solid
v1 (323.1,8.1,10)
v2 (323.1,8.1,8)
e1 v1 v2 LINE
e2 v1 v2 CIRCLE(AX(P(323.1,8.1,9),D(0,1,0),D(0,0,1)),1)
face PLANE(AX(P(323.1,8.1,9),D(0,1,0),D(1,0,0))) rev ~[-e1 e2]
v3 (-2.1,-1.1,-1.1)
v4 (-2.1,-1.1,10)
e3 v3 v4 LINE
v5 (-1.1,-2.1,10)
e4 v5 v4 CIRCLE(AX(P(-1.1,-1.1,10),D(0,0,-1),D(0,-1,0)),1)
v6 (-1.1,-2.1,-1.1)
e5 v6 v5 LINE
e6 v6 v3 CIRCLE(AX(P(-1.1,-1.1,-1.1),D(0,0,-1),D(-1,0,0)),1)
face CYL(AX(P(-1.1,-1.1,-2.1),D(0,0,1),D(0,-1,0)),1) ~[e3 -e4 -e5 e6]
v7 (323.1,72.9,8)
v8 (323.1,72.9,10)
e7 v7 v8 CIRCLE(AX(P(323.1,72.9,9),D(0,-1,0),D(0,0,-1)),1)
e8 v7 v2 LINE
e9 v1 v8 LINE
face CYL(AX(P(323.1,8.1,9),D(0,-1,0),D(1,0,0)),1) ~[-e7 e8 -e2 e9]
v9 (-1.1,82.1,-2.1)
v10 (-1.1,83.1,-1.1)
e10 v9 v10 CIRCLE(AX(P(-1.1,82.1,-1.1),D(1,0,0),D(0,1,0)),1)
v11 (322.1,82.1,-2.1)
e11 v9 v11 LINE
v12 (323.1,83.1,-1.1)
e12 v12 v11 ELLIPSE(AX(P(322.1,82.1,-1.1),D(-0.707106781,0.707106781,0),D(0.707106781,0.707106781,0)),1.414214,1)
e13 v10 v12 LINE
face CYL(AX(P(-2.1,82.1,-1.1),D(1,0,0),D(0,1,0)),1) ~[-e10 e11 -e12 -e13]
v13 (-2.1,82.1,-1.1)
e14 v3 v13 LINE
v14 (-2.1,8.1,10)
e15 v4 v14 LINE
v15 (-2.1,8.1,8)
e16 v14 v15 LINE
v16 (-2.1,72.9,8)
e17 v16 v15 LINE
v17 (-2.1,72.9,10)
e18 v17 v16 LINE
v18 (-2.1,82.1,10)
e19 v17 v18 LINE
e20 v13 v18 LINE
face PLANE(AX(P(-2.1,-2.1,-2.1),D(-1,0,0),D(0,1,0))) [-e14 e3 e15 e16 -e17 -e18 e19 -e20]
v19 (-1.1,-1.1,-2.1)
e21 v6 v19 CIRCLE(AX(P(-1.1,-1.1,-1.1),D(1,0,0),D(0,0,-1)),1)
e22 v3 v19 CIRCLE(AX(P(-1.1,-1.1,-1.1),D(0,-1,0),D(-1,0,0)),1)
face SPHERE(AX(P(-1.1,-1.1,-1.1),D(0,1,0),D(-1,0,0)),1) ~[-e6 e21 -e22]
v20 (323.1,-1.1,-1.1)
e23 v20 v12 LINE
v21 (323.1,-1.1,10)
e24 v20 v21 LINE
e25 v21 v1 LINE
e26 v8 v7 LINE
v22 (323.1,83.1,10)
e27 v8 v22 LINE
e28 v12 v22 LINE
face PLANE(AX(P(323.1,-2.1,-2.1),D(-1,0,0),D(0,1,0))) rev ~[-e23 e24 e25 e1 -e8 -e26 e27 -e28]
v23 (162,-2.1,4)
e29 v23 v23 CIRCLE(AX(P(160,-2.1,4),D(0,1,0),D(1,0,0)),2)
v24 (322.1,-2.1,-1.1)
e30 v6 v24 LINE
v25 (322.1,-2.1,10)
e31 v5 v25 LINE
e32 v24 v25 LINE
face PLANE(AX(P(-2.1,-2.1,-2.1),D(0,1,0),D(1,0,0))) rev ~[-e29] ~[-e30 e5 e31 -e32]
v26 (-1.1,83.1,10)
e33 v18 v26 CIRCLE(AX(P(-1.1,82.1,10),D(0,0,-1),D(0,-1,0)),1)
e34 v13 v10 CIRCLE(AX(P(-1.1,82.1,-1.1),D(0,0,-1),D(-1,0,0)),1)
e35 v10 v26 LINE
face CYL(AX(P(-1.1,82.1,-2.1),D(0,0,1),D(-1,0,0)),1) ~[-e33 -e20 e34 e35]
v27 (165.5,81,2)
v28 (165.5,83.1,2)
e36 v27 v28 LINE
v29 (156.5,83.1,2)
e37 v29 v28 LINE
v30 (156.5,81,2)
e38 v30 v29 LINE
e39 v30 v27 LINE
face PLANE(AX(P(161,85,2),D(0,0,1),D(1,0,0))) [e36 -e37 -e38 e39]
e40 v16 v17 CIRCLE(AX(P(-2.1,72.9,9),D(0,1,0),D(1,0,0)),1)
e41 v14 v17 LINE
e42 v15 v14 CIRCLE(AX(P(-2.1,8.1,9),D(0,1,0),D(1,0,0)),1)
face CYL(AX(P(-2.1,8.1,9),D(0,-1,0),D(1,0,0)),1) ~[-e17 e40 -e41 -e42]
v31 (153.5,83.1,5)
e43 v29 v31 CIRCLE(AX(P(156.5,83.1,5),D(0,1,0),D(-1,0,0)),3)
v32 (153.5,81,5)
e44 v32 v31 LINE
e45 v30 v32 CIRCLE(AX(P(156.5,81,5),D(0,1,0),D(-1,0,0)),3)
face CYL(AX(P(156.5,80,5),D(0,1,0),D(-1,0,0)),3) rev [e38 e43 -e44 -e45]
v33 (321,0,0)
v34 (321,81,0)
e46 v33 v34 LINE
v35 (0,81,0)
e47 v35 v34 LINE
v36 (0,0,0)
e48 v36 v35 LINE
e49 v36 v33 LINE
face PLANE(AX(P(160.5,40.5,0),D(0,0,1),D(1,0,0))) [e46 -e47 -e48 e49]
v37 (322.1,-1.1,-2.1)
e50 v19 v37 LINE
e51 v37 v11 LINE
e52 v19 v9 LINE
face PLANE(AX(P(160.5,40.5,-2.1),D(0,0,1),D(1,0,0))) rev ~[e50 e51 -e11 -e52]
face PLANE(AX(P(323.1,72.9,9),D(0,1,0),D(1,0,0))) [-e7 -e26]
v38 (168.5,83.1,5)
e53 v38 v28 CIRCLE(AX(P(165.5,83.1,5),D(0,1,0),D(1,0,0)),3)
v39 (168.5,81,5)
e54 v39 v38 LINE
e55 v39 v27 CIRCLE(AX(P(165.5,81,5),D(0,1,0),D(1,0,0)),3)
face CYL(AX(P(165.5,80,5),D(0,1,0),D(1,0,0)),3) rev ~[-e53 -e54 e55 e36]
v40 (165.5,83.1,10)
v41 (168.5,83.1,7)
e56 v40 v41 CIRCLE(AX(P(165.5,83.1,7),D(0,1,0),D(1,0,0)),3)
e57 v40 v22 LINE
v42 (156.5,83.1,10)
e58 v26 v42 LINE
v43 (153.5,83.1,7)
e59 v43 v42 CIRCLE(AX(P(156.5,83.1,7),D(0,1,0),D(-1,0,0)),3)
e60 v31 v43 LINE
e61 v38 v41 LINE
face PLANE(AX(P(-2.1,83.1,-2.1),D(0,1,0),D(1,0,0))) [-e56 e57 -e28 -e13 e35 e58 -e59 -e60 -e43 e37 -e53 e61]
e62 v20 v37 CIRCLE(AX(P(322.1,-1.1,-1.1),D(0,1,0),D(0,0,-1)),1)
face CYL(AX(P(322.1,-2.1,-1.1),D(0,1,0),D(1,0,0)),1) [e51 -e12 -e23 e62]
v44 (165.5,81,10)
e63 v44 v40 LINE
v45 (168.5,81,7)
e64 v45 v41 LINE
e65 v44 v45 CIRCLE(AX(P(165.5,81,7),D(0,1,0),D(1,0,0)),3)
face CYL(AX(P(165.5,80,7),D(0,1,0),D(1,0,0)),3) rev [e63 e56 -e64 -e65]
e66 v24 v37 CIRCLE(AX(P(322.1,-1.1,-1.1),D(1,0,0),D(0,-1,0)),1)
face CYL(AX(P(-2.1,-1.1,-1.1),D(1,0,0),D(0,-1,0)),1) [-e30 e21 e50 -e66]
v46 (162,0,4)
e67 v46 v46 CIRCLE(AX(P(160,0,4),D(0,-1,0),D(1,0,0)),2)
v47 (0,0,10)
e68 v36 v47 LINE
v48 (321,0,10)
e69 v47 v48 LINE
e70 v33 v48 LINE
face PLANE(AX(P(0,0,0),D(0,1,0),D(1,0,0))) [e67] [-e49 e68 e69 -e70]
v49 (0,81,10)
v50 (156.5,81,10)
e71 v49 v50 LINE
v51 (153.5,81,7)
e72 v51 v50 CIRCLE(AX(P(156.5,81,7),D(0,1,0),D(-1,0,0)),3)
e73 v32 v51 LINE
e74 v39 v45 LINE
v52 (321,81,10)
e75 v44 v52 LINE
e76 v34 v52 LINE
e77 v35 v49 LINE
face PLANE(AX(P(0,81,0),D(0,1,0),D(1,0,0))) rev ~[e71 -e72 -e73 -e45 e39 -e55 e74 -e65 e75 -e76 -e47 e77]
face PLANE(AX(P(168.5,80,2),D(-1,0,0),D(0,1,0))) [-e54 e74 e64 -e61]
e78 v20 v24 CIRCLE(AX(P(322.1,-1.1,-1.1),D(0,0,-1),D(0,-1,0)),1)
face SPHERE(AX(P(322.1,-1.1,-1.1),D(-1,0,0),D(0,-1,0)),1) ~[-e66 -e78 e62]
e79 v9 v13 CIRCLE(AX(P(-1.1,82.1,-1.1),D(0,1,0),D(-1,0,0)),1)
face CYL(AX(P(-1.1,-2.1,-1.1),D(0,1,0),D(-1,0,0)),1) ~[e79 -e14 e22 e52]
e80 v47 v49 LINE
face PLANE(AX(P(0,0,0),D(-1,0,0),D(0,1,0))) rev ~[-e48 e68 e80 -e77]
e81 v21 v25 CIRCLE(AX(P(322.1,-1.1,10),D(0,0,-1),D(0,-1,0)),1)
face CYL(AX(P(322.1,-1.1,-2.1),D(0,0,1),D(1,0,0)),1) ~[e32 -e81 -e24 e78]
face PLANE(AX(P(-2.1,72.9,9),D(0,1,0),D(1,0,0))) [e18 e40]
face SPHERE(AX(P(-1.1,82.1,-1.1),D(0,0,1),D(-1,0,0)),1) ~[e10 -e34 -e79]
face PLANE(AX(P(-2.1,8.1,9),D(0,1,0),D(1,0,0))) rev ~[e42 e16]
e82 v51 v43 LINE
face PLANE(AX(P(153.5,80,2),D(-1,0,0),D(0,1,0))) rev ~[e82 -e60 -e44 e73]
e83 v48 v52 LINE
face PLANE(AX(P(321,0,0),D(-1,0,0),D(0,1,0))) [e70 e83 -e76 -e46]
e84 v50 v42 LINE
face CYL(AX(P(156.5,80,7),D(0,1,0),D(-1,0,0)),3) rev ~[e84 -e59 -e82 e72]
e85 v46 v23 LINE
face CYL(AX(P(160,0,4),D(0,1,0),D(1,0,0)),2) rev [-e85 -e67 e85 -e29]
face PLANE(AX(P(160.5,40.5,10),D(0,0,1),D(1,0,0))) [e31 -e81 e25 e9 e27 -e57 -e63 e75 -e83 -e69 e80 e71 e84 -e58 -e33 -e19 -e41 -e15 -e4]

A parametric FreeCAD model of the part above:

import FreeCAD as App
import Part
import Sketcher

V = App.Vector
Q = App.Units.Quantity


def edges_at(feature, points):
    """Names of the edges that pass closest to the given points."""
    edges = feature.Shape.Edges
    near = lambda p: min(range(len(edges)), key=lambda i: edges[i].distToShape(Part.Vertex(*p))[0])
    return sorted({f"Edge{near(p) + 1}" for p in points})

doc = App.newDocument("Part")
body = doc.addObject("PartDesign::Body", "Body")

# Sketch on XZ plane
sketch1 = body.newObject("Sketcher::SketchObject", "Sketch")
sketch1.AttachmentSupport = (doc.getObject("XZ_Plane"), [""])
sketch1.MapMode = "FlatFace"
sketch1.addGeometry(Part.Circle(V(160, 4, 0), V(0, 0, 1), 2), False)
sketch1.addConstraint(Sketcher.Constraint("Diameter", 0, Q("4 mm")))
sketch1.addConstraint(Sketcher.Constraint("DistanceX", -1, 1, 0, 3, Q("160 mm")))
sketch1.addConstraint(Sketcher.Constraint("DistanceY", -1, 1, 0, 3, Q("4 mm")))
pad1 = body.newObject("PartDesign::Pad", "Pad")
pad1.Profile = sketch1
pad1.Length = 10
body2 = doc.addObject("PartDesign::Body", "Body001")

# Sketch on XY plane
sketch2 = body2.newObject("Sketcher::SketchObject", "Sketch001")
sketch2.AttachmentSupport = (doc.getObject("XY_Plane001"), [""])
sketch2.MapMode = "FlatFace"
sketch2.AttachmentOffset = App.Placement(V(0, 0, 2), App.Rotation())
sketch2.addGeometry(Part.LineSegment(V(154, 90, 0), V(154, 80, 0)), False)
sketch2.addGeometry(Part.LineSegment(V(154, 80, 0), V(168, 80, 0)), False)
sketch2.addGeometry(Part.LineSegment(V(168, 80, 0), V(168, 90, 0)), False)
sketch2.addGeometry(Part.LineSegment(V(168, 90, 0), V(154, 90, 0)), False)
sketch2.addConstraint(Sketcher.Constraint("Coincident", 0, 2, 1, 1))
sketch2.addConstraint(Sketcher.Constraint("Coincident", 1, 2, 2, 1))
sketch2.addConstraint(Sketcher.Constraint("Coincident", 2, 2, 3, 1))
sketch2.addConstraint(Sketcher.Constraint("Coincident", 3, 2, 0, 1))
sketch2.addConstraint(Sketcher.Constraint("Vertical", 0))
sketch2.addConstraint(Sketcher.Constraint("Horizontal", 1))
sketch2.addConstraint(Sketcher.Constraint("Vertical", 2))
sketch2.addConstraint(Sketcher.Constraint("Horizontal", 3))
sketch2.addConstraint(Sketcher.Constraint("DistanceX", 1, 1, 1, 2, Q("15 mm")))
sketch2.addConstraint(Sketcher.Constraint("DistanceY", 0, 2, 0, 1, Q("10 mm")))
sketch2.addConstraint(Sketcher.Constraint("DistanceY", -1, 1, 0, 2, Q("80 mm")))
sketch2.addConstraint(Sketcher.Constraint("DistanceX", -1, 1, 0, 2, Q("153.5 mm")))
pad2 = body2.newObject("PartDesign::Pad", "Pad001")
pad2.Profile = sketch2
pad2.Length = 8
doc.recompute()

fillet = body2.newObject("PartDesign::Fillet", "Fillet")
fillet.Base = (pad2, edges_at(pad2, [
    (153.5, 85, 10),
    (153.5, 85, 2),
    (168.5, 85, 10),
    (168.5, 85, 2),
]))
fillet.Radius = 3
body3 = doc.addObject("PartDesign::Body", "Body002")

# Sketch on XZ plane
sketch3 = body3.newObject("Sketcher::SketchObject", "Sketch002")
sketch3.AttachmentSupport = (doc.getObject("XZ_Plane002"), [""])
sketch3.MapMode = "FlatFace"
sketch3.AttachmentOffset = App.Placement(V(0, 0, -8.1), App.Rotation())
sketch3.addGeometry(Part.Circle(V(-2.1, 9, 0), V(0, 0, 1), 1), False)
sketch3.addConstraint(Sketcher.Constraint("Diameter", 0, Q("2 mm")))
sketch3.addConstraint(Sketcher.Constraint("DistanceY", -1, 1, 0, 3, Q("9 mm")))
sketch3.addConstraint(Sketcher.Constraint("DistanceX", 0, 3, -1, 1, Q("2.1 mm")))
pad3 = body3.newObject("PartDesign::Pad", "Pad002")
pad3.Profile = sketch3
pad3.Length = 64.8
pad3.Reversed = True
body4 = doc.addObject("PartDesign::Body", "Body003")

# Sketch on XZ plane
sketch4 = body4.newObject("Sketcher::SketchObject", "Sketch003")
sketch4.AttachmentSupport = (doc.getObject("XZ_Plane003"), [""])
sketch4.MapMode = "FlatFace"
sketch4.AttachmentOffset = App.Placement(V(0, 0, -8.1), App.Rotation())
sketch4.addGeometry(Part.Circle(V(323.1, 9, 0), V(0, 0, 1), 1), False)
sketch4.addConstraint(Sketcher.Constraint("Diameter", 0, Q("2 mm")))
sketch4.addConstraint(Sketcher.Constraint("DistanceY", -1, 1, 0, 3, Q("9 mm")))
sketch4.addConstraint(Sketcher.Constraint("DistanceX", -1, 1, 0, 3, Q("323.1 mm")))
pad4 = body4.newObject("PartDesign::Pad", "Pad003")
pad4.Profile = sketch4
pad4.Length = 64.8
pad4.Reversed = True
body5 = doc.addObject("PartDesign::Body", "Body004")

# Sketch on XY plane
sketch5 = body5.newObject("Sketcher::SketchObject", "Sketch004")
sketch5.AttachmentSupport = (doc.getObject("XY_Plane004"), [""])
sketch5.MapMode = "FlatFace"
sketch5.addGeometry(Part.LineSegment(V(0, 81, 0), V(0, 0, 0)), False)
sketch5.addGeometry(Part.LineSegment(V(0, 0, 0), V(321, 0, 0)), False)
sketch5.addGeometry(Part.LineSegment(V(321, 0, 0), V(321, 81, 0)), False)
sketch5.addGeometry(Part.LineSegment(V(321, 81, 0), V(0, 81, 0)), False)
sketch5.addConstraint(Sketcher.Constraint("Coincident", 0, 2, 1, 1))
sketch5.addConstraint(Sketcher.Constraint("Coincident", 1, 2, 2, 1))
sketch5.addConstraint(Sketcher.Constraint("Coincident", 2, 2, 3, 1))
sketch5.addConstraint(Sketcher.Constraint("Coincident", 3, 2, 0, 1))
sketch5.addConstraint(Sketcher.Constraint("Vertical", 0))
sketch5.addConstraint(Sketcher.Constraint("Horizontal", 1))
sketch5.addConstraint(Sketcher.Constraint("Vertical", 2))
sketch5.addConstraint(Sketcher.Constraint("Horizontal", 3))
sketch5.addConstraint(Sketcher.Constraint("Coincident", 0, 2, -1, 1))
sketch5.addConstraint(Sketcher.Constraint("DistanceX", 1, 1, 1, 2, Q("321 mm")))
sketch5.addConstraint(Sketcher.Constraint("DistanceY", 0, 2, 0, 1, Q("81 mm")))
pad5 = body5.newObject("PartDesign::Pad", "Pad004")
pad5.Profile = sketch5
pad5.Length = 10
body6 = doc.addObject("PartDesign::Body", "Body005")

# Sketch on XY plane
sketch6 = body6.newObject("Sketcher::SketchObject", "Sketch005")
sketch6.AttachmentSupport = (doc.getObject("XY_Plane005"), [""])
sketch6.MapMode = "FlatFace"
sketch6.AttachmentOffset = App.Placement(V(0, 0, -2.1), App.Rotation())
sketch6.addGeometry(Part.LineSegment(V(-2, 83, 0), V(-2, -2, 0)), False)
sketch6.addGeometry(Part.LineSegment(V(-2, -2, 0), V(323, -2, 0)), False)
sketch6.addGeometry(Part.LineSegment(V(323, -2, 0), V(323, 83, 0)), False)
sketch6.addGeometry(Part.LineSegment(V(323, 83, 0), V(-2, 83, 0)), False)
sketch6.addConstraint(Sketcher.Constraint("Coincident", 0, 2, 1, 1))
sketch6.addConstraint(Sketcher.Constraint("Coincident", 1, 2, 2, 1))
sketch6.addConstraint(Sketcher.Constraint("Coincident", 2, 2, 3, 1))
sketch6.addConstraint(Sketcher.Constraint("Coincident", 3, 2, 0, 1))
sketch6.addConstraint(Sketcher.Constraint("Vertical", 0))
sketch6.addConstraint(Sketcher.Constraint("Horizontal", 1))
sketch6.addConstraint(Sketcher.Constraint("Vertical", 2))
sketch6.addConstraint(Sketcher.Constraint("Horizontal", 3))
sketch6.addConstraint(Sketcher.Constraint("DistanceX", 1, 1, 1, 2, Q("325.2 mm")))
sketch6.addConstraint(Sketcher.Constraint("DistanceY", 0, 2, 0, 1, Q("85.2 mm")))
sketch6.addConstraint(Sketcher.Constraint("DistanceX", 0, 2, -1, 1, Q("2.1 mm")))
sketch6.addConstraint(Sketcher.Constraint("DistanceY", 0, 2, -1, 1, Q("2.1 mm")))
pad6 = body6.newObject("PartDesign::Pad", "Pad005")
pad6.Profile = sketch6
pad6.Length = 12.1
doc.recompute()

boolean = body6.newObject("PartDesign::Boolean", "Boolean")
boolean.Type = "Cut"
boolean.addObjects([body5])
doc.recompute()

boolean2 = body6.newObject("PartDesign::Boolean", "Boolean001")
boolean2.Type = "Fuse"
boolean2.addObjects([body3])
doc.recompute()

boolean3 = body6.newObject("PartDesign::Boolean", "Boolean002")
boolean3.Type = "Fuse"
boolean3.addObjects([body4])
doc.recompute()

fillet2 = body6.newObject("PartDesign::Fillet", "Fillet001")
fillet2.Base = (boolean3, edges_at(boolean3, [
    (-2.1, 83.1, 3.95),
    (-2.1, 40.5, -2.1),
    (-2.1, -2.1, 3.95),
    (160.5, 83.1, -2.1),
    (160.5, -2.1, -2.1),
    (323.1, -2.1, 3.95),
    (323.1, 40.5, -2.1),
]))
fillet2.Radius = 1
doc.recompute()

boolean4 = body6.newObject("PartDesign::Boolean", "Boolean003")
boolean4.Type = "Cut"
boolean4.addObjects([body2])
doc.recompute()

boolean5 = body6.newObject("PartDesign::Boolean", "Boolean004")
boolean5.Type = "Cut"
boolean5.addObjects([body])

doc.recompute()
